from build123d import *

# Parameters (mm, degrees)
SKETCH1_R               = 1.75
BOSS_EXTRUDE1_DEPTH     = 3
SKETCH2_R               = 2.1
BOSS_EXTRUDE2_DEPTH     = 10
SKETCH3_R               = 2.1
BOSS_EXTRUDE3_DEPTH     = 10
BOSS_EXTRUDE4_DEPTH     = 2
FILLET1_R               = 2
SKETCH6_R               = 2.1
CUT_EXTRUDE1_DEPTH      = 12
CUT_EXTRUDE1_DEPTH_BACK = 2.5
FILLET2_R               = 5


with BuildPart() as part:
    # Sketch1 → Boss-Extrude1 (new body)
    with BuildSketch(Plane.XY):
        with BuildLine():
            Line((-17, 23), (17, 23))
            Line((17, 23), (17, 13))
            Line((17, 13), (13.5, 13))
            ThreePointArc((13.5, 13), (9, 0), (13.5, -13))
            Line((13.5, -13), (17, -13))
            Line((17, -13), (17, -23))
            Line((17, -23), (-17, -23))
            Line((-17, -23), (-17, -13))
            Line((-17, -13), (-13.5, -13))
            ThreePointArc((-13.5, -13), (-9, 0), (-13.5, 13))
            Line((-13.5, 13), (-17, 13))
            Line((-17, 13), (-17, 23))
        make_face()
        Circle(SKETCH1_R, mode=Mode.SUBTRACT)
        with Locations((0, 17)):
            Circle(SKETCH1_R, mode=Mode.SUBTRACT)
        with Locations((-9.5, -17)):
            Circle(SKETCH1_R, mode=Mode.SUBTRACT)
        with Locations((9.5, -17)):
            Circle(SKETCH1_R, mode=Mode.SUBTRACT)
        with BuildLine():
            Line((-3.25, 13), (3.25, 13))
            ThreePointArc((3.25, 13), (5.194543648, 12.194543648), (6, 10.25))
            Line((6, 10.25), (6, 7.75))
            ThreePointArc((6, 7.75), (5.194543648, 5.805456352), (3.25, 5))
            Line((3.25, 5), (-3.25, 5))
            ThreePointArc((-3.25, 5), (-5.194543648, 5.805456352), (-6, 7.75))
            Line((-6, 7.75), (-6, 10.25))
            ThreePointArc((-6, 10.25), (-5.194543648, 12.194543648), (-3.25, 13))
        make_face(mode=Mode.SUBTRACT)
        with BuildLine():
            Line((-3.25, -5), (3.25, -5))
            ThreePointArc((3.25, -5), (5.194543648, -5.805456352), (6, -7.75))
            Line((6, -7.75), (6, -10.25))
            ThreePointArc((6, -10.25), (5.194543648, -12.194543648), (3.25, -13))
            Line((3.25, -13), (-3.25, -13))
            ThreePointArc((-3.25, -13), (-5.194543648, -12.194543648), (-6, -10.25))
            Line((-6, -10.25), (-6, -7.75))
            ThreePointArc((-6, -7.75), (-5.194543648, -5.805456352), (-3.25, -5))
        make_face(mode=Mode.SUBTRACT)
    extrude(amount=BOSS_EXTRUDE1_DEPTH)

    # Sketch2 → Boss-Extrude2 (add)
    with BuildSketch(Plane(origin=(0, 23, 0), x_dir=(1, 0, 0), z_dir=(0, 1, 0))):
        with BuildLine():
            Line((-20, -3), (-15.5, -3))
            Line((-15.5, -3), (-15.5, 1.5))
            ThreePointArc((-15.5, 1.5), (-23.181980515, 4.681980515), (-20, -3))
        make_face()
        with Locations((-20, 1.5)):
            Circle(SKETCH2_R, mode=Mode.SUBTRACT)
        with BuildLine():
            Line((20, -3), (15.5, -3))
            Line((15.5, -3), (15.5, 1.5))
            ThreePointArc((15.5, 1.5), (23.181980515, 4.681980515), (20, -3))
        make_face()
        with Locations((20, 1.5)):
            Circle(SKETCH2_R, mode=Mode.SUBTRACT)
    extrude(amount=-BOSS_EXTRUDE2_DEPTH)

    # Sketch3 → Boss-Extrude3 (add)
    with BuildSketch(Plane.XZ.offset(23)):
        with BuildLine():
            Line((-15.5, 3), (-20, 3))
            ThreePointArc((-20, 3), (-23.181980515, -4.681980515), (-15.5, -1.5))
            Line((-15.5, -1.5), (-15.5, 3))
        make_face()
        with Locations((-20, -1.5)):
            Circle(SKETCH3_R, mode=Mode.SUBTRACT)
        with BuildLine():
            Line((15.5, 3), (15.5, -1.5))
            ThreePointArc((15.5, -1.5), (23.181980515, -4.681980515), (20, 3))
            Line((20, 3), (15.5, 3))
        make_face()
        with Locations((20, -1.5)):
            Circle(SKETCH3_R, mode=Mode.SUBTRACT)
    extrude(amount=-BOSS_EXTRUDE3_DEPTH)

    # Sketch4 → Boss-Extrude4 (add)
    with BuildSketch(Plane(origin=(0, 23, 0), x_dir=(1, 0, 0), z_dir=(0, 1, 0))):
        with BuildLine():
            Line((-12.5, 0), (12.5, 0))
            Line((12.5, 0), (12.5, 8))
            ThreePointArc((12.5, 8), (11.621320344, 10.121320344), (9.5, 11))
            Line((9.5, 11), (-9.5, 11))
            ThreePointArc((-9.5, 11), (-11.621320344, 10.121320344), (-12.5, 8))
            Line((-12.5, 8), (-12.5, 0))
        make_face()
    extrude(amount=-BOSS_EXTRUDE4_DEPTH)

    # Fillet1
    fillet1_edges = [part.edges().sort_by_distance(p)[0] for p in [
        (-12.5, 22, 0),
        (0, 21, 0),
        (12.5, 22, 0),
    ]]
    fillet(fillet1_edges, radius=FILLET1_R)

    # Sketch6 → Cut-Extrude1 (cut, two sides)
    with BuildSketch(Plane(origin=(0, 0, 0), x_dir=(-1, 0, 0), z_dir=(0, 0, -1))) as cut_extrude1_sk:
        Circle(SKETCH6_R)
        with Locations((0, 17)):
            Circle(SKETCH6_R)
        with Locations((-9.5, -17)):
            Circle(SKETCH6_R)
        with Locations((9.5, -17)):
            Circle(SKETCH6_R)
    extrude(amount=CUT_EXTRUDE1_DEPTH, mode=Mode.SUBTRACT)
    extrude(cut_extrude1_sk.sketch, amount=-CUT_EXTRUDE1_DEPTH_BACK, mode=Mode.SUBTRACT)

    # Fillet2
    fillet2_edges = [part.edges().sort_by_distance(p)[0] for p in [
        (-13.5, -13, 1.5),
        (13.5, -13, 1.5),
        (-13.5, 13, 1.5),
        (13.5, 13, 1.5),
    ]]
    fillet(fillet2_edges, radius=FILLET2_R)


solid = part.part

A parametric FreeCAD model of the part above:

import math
import FreeCAD as App
import Part
import Sketcher
Q = App.Units.Quantity


def edges_at(feature, points):
    """Names of the edges that pass closest to the given points."""
    edges = feature.Shape.Edges
    near = lambda p: min(range(len(edges)), key=lambda i: edges[i].distToShape(Part.Vertex(*p))[0])
    return sorted({f"Edge{near(p) + 1}" for p in points})

doc = App.newDocument("Part")
params = doc.addObject("Spreadsheet::Sheet", "Params")
for row, (alias, value) in enumerate([
    ("sketch1_diameter", "3.5 mm"),
    ("sketch1_width", "34 mm"),
    ("sketch1_height", "10 mm"),
    ("sketch1_radius", "2.75 mm"),
    ("sketch1_width2", "3.5 mm"),
    ("pad1_length", "3 mm"),
    ("sketch2_diameter", "4.2 mm"),
    ("sketch2_radius", "4.5 mm"),
    ("pad2_length", "10 mm"),
    ("sketch3_diameter", "4.2 mm"),
    ("sketch3_radius", "4.5 mm"),
    ("pad3_length", "10 mm"),
    ("sketch4_radius", "3 mm"),
    ("sketch4_width", "25 mm"),
    ("sketch4_height", "8 mm"),
    ("pad4_length", "2 mm"),
    ("fillet_radius", "2 mm"),
    ("sketch5_diameter", "4.2 mm"),
    ("pocket1_length", "12 mm"),
    ("pocket1_length2", "2.5 mm"),
    ("fillet2_radius", "5 mm"),
], start=1):
    params.set(f"A{row}", alias)
    params.set(f"B{row}", "=" + value)
    params.setAlias(f"B{row}", alias)

body = doc.addObject("PartDesign::Body", "Body")

sketch1 = body.newObject("Sketcher::SketchObject", "Sketch")
sketch1.AttachmentSupport = (doc.getObject("XY_Plane"), [""])
sketch1.MapMode = "FlatFace"
sketch1.addGeometry(Part.LineSegment(App.Vector(17, 23, 0), App.Vector(-17, 23, 0)), False)
sketch1.addGeometry(Part.LineSegment(App.Vector(-17, 23, 0), App.Vector(-17, 13, 0)), False)
sketch1.addGeometry(Part.LineSegment(App.Vector(-17, 13, 0), App.Vector(-13.5, 13, 0)), False)
sketch1.addGeometry(Part.ArcOfCircle(Part.Circle(App.Vector(-30.027778, 0, 0), App.Vector(0, 0, 1), 21.027778), math.radians(-38.186984), math.radians(38.186984)), False)
sketch1.addGeometry(Part.LineSegment(App.Vector(-13.5, -13, 0), App.Vector(-17, -13, 0)), False)
sketch1.addGeometry(Part.LineSegment(App.Vector(-17, -13, 0), App.Vector(-17, -23, 0)), False)
sketch1.addGeometry(Part.LineSegment(App.Vector(-17, -23, 0), App.Vector(17, -23, 0)), False)
sketch1.addGeometry(Part.LineSegment(App.Vector(17, -23, 0), App.Vector(17, -13, 0)), False)
sketch1.addGeometry(Part.LineSegment(App.Vector(17, -13, 0), App.Vector(13.5, -13, 0)), False)
sketch1.addGeometry(Part.ArcOfCircle(Part.Circle(App.Vector(30.027778, 0, 0), App.Vector(0, 0, 1), 21.027778), math.radians(141.813016), math.radians(218.186984)), False)
sketch1.addGeometry(Part.LineSegment(App.Vector(13.5, 13, 0), App.Vector(17, 13, 0)), False)
sketch1.addGeometry(Part.LineSegment(App.Vector(17, 13, 0), App.Vector(17, 23, 0)), False)
sketch1.addGeometry(Part.Circle(App.Vector(9.5, -17, 0), App.Vector(0, 0, 1), 1.75), False)
sketch1.addGeometry(Part.Circle(App.Vector(-9.5, -17, 0), App.Vector(0, 0, 1), 1.75), False)
sketch1.addGeometry(Part.LineSegment(App.Vector(-3.25, -5, 0), App.Vector(3.25, -5, 0)), False)
sketch1.addGeometry(Part.ArcOfCircle(Part.Circle(App.Vector(3.25, -7.75, 0), App.Vector(0, 0, 1), 2.75), math.radians(0), math.radians(90)), False)
sketch1.addGeometry(Part.LineSegment(App.Vector(6, -7.75, 0), App.Vector(6, -10.25, 0)), False)
sketch1.addGeometry(Part.ArcOfCircle(Part.Circle(App.Vector(3.25, -10.25, 0), App.Vector(0, 0, 1), 2.75), math.radians(-90), math.radians(0)), False)
sketch1.addGeometry(Part.LineSegment(App.Vector(3.25, -13, 0), App.Vector(-3.25, -13, 0)), False)
sketch1.addGeometry(Part.ArcOfCircle(Part.Circle(App.Vector(-3.25, -10.25, 0), App.Vector(0, 0, 1), 2.75), math.radians(-180), math.radians(-90)), False)
sketch1.addGeometry(Part.LineSegment(App.Vector(-6, -10.25, 0), App.Vector(-6, -7.75, 0)), False)
sketch1.addGeometry(Part.ArcOfCircle(Part.Circle(App.Vector(-3.25, -7.75, 0), App.Vector(0, 0, 1), 2.75), math.radians(90), math.radians(180)), False)
sketch1.addGeometry(Part.Circle(App.Vector(0, 0, 0), App.Vector(0, 0, 1), 1.75), False)
sketch1.addGeometry(Part.LineSegment(App.Vector(-3.25, 13, 0), App.Vector(3.25, 13, 0)), False)
sketch1.addGeometry(Part.ArcOfCircle(Part.Circle(App.Vector(3.25, 10.25, 0), App.Vector(0, 0, 1), 2.75), math.radians(0), math.radians(90)), False)
sketch1.addGeometry(Part.LineSegment(App.Vector(6, 10.25, 0), App.Vector(6, 7.75, 0)), False)
sketch1.addGeometry(Part.ArcOfCircle(Part.Circle(App.Vector(3.25, 7.75, 0), App.Vector(0, 0, 1), 2.75), math.radians(-90), math.radians(0)), False)
sketch1.addGeometry(Part.LineSegment(App.Vector(3.25, 5, 0), App.Vector(-3.25, 5, 0)), False)
sketch1.addGeometry(Part.ArcOfCircle(Part.Circle(App.Vector(-3.25, 7.75, 0), App.Vector(0, 0, 1), 2.75), math.radians(-180), math.radians(-90)), False)
sketch1.addGeometry(Part.LineSegment(App.Vector(-6, 7.75, 0), App.Vector(-6, 10.25, 0)), False)
sketch1.addGeometry(Part.ArcOfCircle(Part.Circle(App.Vector(-3.25, 10.25, 0), App.Vector(0, 0, 1), 2.75), math.radians(90), math.radians(180)), False)
sketch1.addGeometry(Part.Circle(App.Vector(0, 17, 0), App.Vector(0, 0, 1), 1.75), False)
sketch1.addConstraint(Sketcher.Constraint("Coincident", 0, 2, 1, 1))
sketch1.addConstraint(Sketcher.Constraint("Coincident", 1, 2, 2, 1))
sketch1.addConstraint(Sketcher.Constraint("Coincident", 2, 2, 3, 2))
sketch1.addConstraint(Sketcher.Constraint("Coincident", 3, 1, 4, 1))
sketch1.addConstraint(Sketcher.Constraint("Coincident", 4, 2, 5, 1))
sketch1.addConstraint(Sketcher.Constraint("Coincident", 5, 2, 6, 1))
sketch1.addConstraint(Sketcher.Constraint("Coincident", 6, 2, 7, 1))
sketch1.addConstraint(Sketcher.Constraint("Coincident", 7, 2, 8, 1))
sketch1.addConstraint(Sketcher.Constraint("Coincident", 8, 2, 9, 2))
sketch1.addConstraint(Sketcher.Constraint("Coincident", 9, 1, 10, 1))
sketch1.addConstraint(Sketcher.Constraint("Coincident", 10, 2, 11, 1))
sketch1.addConstraint(Sketcher.Constraint("Coincident", 11, 2, 0, 1))
sketch1.addConstraint(Sketcher.Constraint("Tangent", 14, 2, 15, 2))
sketch1.addConstraint(Sketcher.Constraint("Tangent", 15, 1, 16, 1))
sketch1.addConstraint(Sketcher.Constraint("Tangent", 16, 2, 17, 2))
sketch1.addConstraint(Sketcher.Constraint("Tangent", 17, 1, 18, 1))
sketch1.addConstraint(Sketcher.Constraint("Tangent", 18, 2, 19, 2))
sketch1.addConstraint(Sketcher.Constraint("Tangent", 19, 1, 20, 1))
sketch1.addConstraint(Sketcher.Constraint("Tangent", 20, 2, 21, 2))
sketch1.addConstraint(Sketcher.Constraint("Tangent", 21, 1, 14, 1))
sketch1.addConstraint(Sketcher.Constraint("Tangent", 23, 2, 24, 2))
sketch1.addConstraint(Sketcher.Constraint("Tangent", 24, 1, 25, 1))
sketch1.addConstraint(Sketcher.Constraint("Tangent", 25, 2, 26, 2))
sketch1.addConstraint(Sketcher.Constraint("Tangent", 26, 1, 27, 1))
sketch1.addConstraint(Sketcher.Constraint("Tangent", 27, 2, 28, 2))
sketch1.addConstraint(Sketcher.Constraint("Tangent", 28, 1, 29, 1))
sketch1.addConstraint(Sketcher.Constraint("Tangent", 29, 2, 30, 2))
sketch1.addConstraint(Sketcher.Constraint("Tangent", 30, 1, 23, 1))
sketch1.addConstraint(Sketcher.Constraint("Horizontal", 0))
sketch1.addConstraint(Sketcher.Constraint("Vertical", 1))
sketch1.addConstraint(Sketcher.Constraint("Horizontal", 2))
sketch1.addConstraint(Sketcher.Constraint("Horizontal", 4))
sketch1.addConstraint(Sketcher.Constraint("Vertical", 5))
sketch1.addConstraint(Sketcher.Constraint("Horizontal", 6))
sketch1.addConstraint(Sketcher.Constraint("Vertical", 7))
sketch1.addConstraint(Sketcher.Constraint("Horizontal", 8))
sketch1.addConstraint(Sketcher.Constraint("Horizontal", 10))
sketch1.addConstraint(Sketcher.Constraint("Vertical", 11))
sketch1.addConstraint(Sketcher.Constraint("Horizontal", 14))
sketch1.addConstraint(Sketcher.Constraint("Vertical", 16))
sketch1.addConstraint(Sketcher.Constraint("Horizontal", 18))
sketch1.addConstraint(Sketcher.Constraint("Vertical", 20))
sketch1.addConstraint(Sketcher.Constraint("Horizontal", 23))
sketch1.addConstraint(Sketcher.Constraint("Vertical", 25))
sketch1.addConstraint(Sketcher.Constraint("Horizontal", 27))
sketch1.addConstraint(Sketcher.Constraint("Vertical", 29))
sketch1.addConstraint(Sketcher.Constraint("Coincident", 22, 3, -1, 1))
sketch1.addConstraint(Sketcher.Constraint("Equal", 3, 9))
sketch1.addConstraint(Sketcher.Constraint("Equal", 12, 13))
sketch1.addConstraint(Sketcher.Constraint("Equal", 15, 17))
sketch1.addConstraint(Sketcher.Constraint("Equal", 17, 19))
sketch1.addConstraint(Sketcher.Constraint("Equal", 19, 21))
sketch1.addConstraint(Sketcher.Constraint("Equal", 13, 22))
sketch1.addConstraint(Sketcher.Constraint("Equal", 21, 24))
sketch1.addConstraint(Sketcher.Constraint("Equal", 24, 26))
sketch1.addConstraint(Sketcher.Constraint("Equal", 26, 28))
sketch1.addConstraint(Sketcher.Constraint("Equal", 28, 30))
sketch1.addConstraint(Sketcher.Constraint("Equal", 22, 31))
sketch1.addConstraint(Sketcher.Constraint("Symmetric", 3, 3, 9, 3, -1, 1))
sketch1.addConstraint(Sketcher.Constraint("Symmetric", 19, 3, 24, 3, -1, 1))
sketch1.addConstraint(Sketcher.Constraint("Symmetric", 15, 3, 28, 3, -1, 1))
sketch1.addConstraint(Sketcher.Constraint("Symmetric", 0, 2, 6, 2, -1, 1))
sketch1.addConstraint(Sketcher.Constraint("Symmetric", 4, 2, 10, 2, -1, 1))
sketch1.addConstraint(Sketcher.Constraint("Symmetric", 12, 3, 13, 3, -2))
sketch1.addConstraint(Sketcher.Constraint("Symmetric", 4, 2, 7, 2, -2))
sketch1.addConstraint(Sketcher.Constraint("Symmetric", 2, 2, 9, 1, -2))
sketch1.addConstraint(Sketcher.Constraint("PointOnObject", 31, 3, -2))
sketch1.addConstraint(Sketcher.Constraint("Horizontal", 8, 2, 17, 1))
sketch1.addConstraint(Sketcher.Constraint("Vertical", 17, 3, 24, 3))
sketch1.addConstraint(Sketcher.Constraint("Diameter", 12, Q("3.5 mm")))
sketch1.addConstraint(Sketcher.Constraint("DistanceX", 0, 2, 0, 1, Q("34 mm")))
sketch1.addConstraint(Sketcher.Constraint("DistanceY", 1, 2, 1, 1, Q("10 mm")))
sketch1.addConstraint(Sketcher.Constraint("Radius", 15, Q("2.75 mm")))
sketch1.addConstraint(Sketcher.Constraint("DistanceX", 2, 1, 2, 2, Q("3.5 mm")))
sketch1.addConstraint(Sketcher.Constraint("DistanceX", 14, 1, 14, 2, Q("6.5 mm")))
sketch1.addConstraint(Sketcher.Constraint("DistanceY", 16, 2, 16, 1, Q("2.5 mm")))
sketch1.addConstraint(Sketcher.Constraint("DistanceY", 12, 3, -1, 1, Q("17 mm")))
sketch1.addConstraint(Sketcher.Constraint("DistanceY", -1, 1, 31, 3, Q("17 mm")))
sketch1.addConstraint(Sketcher.Constraint("DistanceY", -1, 1, 0, 2, Q("23 mm")))
sketch1.addConstraint(Sketcher.Constraint("DistanceX", 13, 3, 12, 3, Q("19 mm")))
sketch1.addConstraint(Sketcher.Constraint("Radius", 3, Q("21.027778 mm")))
sketch1.setExpression("Constraints[69]", "Params.sketch1_diameter")
sketch1.setExpression("Constraints[70]", "Params.sketch1_width")
sketch1.setExpression("Constraints[71]", "Params.sketch1_height")
sketch1.setExpression("Constraints[72]", "Params.sketch1_radius")
sketch1.setExpression("Constraints[73]", "Params.sketch1_width2")
pad1 = body.newObject("PartDesign::Pad", "Pad")
pad1.Profile = sketch1
pad1.setExpression("Length", "Params.pad1_length")

sketch2 = body.newObject("Sketcher::SketchObject", "Sketch001")
sketch2.AttachmentSupport = (doc.getObject("XZ_Plane"), [""])
sketch2.MapMode = "FlatFace"
sketch2.AttachmentOffset = App.Placement(App.Vector(0, 0, -23), App.Rotation())
sketch2.addGeometry(Part.LineSegment(App.Vector(-20, 3, 0), App.Vector(-15.5, 3, 0)), False)
sketch2.addGeometry(Part.LineSegment(App.Vector(-15.5, 3, 0), App.Vector(-15.5, -1.5, 0)), False)
sketch2.addGeometry(Part.ArcOfCircle(Part.Circle(App.Vector(-20, -1.5, 0), App.Vector(0, 0, 1), 4.5), math.radians(90), math.radians(360)), False)
sketch2.addGeometry(Part.Circle(App.Vector(-20, -1.5, 0), App.Vector(0, 0, 1), 2.1), False)
sketch2.addGeometry(Part.LineSegment(App.Vector(15.5, 3, 0), App.Vector(20, 3, 0)), False)
sketch2.addGeometry(Part.ArcOfCircle(Part.Circle(App.Vector(20, -1.5, 0), App.Vector(0, 0, 1), 4.5), math.radians(180), math.radians(450)), False)
sketch2.addGeometry(Part.LineSegment(App.Vector(15.5, -1.5, 0), App.Vector(15.5, 3, 0)), False)
sketch2.addGeometry(Part.Circle(App.Vector(20, -1.5, 0), App.Vector(0, 0, 1), 2.1), False)
sketch2.addConstraint(Sketcher.Constraint("Coincident", 0, 2, 1, 1))
sketch2.addConstraint(Sketcher.Constraint("Tangent", 1, 2, 2, 2))
sketch2.addConstraint(Sketcher.Constraint("Tangent", 2, 1, 0, 1))
sketch2.addConstraint(Sketcher.Constraint("Tangent", 4, 2, 5, 2))
sketch2.addConstraint(Sketcher.Constraint("Tangent", 5, 1, 6, 1))
sketch2.addConstraint(Sketcher.Constraint("Coincident", 6, 2, 4, 1))
sketch2.addConstraint(Sketcher.Constraint("Horizontal", 0))
sketch2.addConstraint(Sketcher.Constraint("Vertical", 1))
sketch2.addConstraint(Sketcher.Constraint("Horizontal", 4))
sketch2.addConstraint(Sketcher.Constraint("Vertical", 6))
sketch2.addConstraint(Sketcher.Constraint("Coincident", 3, 3, 2, 3))
sketch2.addConstraint(Sketcher.Constraint("Coincident", 7, 3, 5, 3))
sketch2.addConstraint(Sketcher.Constraint("Equal", 2, 5))
sketch2.addConstraint(Sketcher.Constraint("Equal", 3, 7))
sketch2.addConstraint(Sketcher.Constraint("Symmetric", 2, 3, 5, 3, -2))
sketch2.addConstraint(Sketcher.Constraint("Diameter", 3, Q("4.2 mm")))
sketch2.addConstraint(Sketcher.Constraint("Radius", 2, Q("4.5 mm")))
sketch2.addConstraint(Sketcher.Constraint("DistanceX", 2, 3, -1, 1, Q("20 mm")))
sketch2.addConstraint(Sketcher.Constraint("DistanceY", -1, 1, 0, 2, Q("3 mm")))
sketch2.setExpression("Constraints[15]", "Params.sketch2_diameter")
sketch2.setExpression("Constraints[16]", "Params.sketch2_radius")
pad2 = body.newObject("PartDesign::Pad", "Pad001")
pad2.Profile = sketch2
pad2.setExpression("Length", "Params.pad2_length")

sketch3 = body.newObject("Sketcher::SketchObject", "Sketch002")
sketch3.AttachmentSupport = (doc.getObject("XZ_Plane"), [""])
sketch3.MapMode = "FlatFace"
sketch3.AttachmentOffset = App.Placement(App.Vector(0, 0, 23), App.Rotation())
sketch3.addGeometry(Part.LineSegment(App.Vector(-15.5, 3, 0), App.Vector(-20, 3, 0)), False)
sketch3.addGeometry(Part.ArcOfCircle(Part.Circle(App.Vector(-20, -1.5, 0), App.Vector(0, 0, 1), 4.5), math.radians(90), math.radians(360)), False)
sketch3.addGeometry(Part.LineSegment(App.Vector(-15.5, -1.5, 0), App.Vector(-15.5, 3, 0)), False)
sketch3.addGeometry(Part.Circle(App.Vector(-20, -1.5, 0), App.Vector(0, 0, 1), 2.1), False)
sketch3.addGeometry(Part.LineSegment(App.Vector(15.5, 3, 0), App.Vector(15.5, -1.5, 0)), False)
sketch3.addGeometry(Part.ArcOfCircle(Part.Circle(App.Vector(20, -1.5, 0), App.Vector(0, 0, 1), 4.5), math.radians(180), math.radians(450)), False)
sketch3.addGeometry(Part.LineSegment(App.Vector(20, 3, 0), App.Vector(15.5, 3, 0)), False)
sketch3.addGeometry(Part.Circle(App.Vector(20, -1.5, 0), App.Vector(0, 0, 1), 2.1), False)
sketch3.addConstraint(Sketcher.Constraint("Tangent", 0, 2, 1, 1))
sketch3.addConstraint(Sketcher.Constraint("Tangent", 1, 2, 2, 1))
sketch3.addConstraint(Sketcher.Constraint("Coincident", 2, 2, 0, 1))
sketch3.addConstraint(Sketcher.Constraint("Tangent", 4, 2, 5, 1))
sketch3.addConstraint(Sketcher.Constraint("Tangent", 5, 2, 6, 1))
sketch3.addConstraint(Sketcher.Constraint("Coincident", 6, 2, 4, 1))
sketch3.addConstraint(Sketcher.Constraint("Horizontal", 0))
sketch3.addConstraint(Sketcher.Constraint("Vertical", 2))
sketch3.addConstraint(Sketcher.Constraint("Vertical", 4))
sketch3.addConstraint(Sketcher.Constraint("Horizontal", 6))
sketch3.addConstraint(Sketcher.Constraint("Coincident", 3, 3, 1, 3))
sketch3.addConstraint(Sketcher.Constraint("Coincident", 7, 3, 5, 3))
sketch3.addConstraint(Sketcher.Constraint("Equal", 1, 5))
sketch3.addConstraint(Sketcher.Constraint("Equal", 3, 7))
sketch3.addConstraint(Sketcher.Constraint("Symmetric", 1, 3, 5, 3, -2))
sketch3.addConstraint(Sketcher.Constraint("Diameter", 3, Q("4.2 mm")))
sketch3.addConstraint(Sketcher.Constraint("Radius", 1, Q("4.5 mm")))
sketch3.addConstraint(Sketcher.Constraint("DistanceX", 1, 3, -1, 1, Q("20 mm")))
sketch3.addConstraint(Sketcher.Constraint("DistanceY", -1, 1, 0, 2, Q("3 mm")))
sketch3.setExpression("Constraints[15]", "Params.sketch3_diameter")
sketch3.setExpression("Constraints[16]", "Params.sketch3_radius")
pad3 = body.newObject("PartDesign::Pad", "Pad002")
pad3.Profile = sketch3
pad3.setExpression("Length", "Params.pad3_length")
pad3.Reversed = True

sketch4 = body.newObject("Sketcher::SketchObject", "Sketch003")
sketch4.AttachmentSupport = (doc.getObject("XZ_Plane"), [""])
sketch4.MapMode = "FlatFace"
sketch4.AttachmentOffset = App.Placement(App.Vector(0, 0, -23), App.Rotation())
sketch4.addGeometry(Part.LineSegment(App.Vector(-12.5, 0, 0), App.Vector(12.5, 0, 0)), False)
sketch4.addGeometry(Part.LineSegment(App.Vector(12.5, 0, 0), App.Vector(12.5, -8, 0)), False)
sketch4.addGeometry(Part.ArcOfCircle(Part.Circle(App.Vector(9.5, -8, 0), App.Vector(0, 0, 1), 3), math.radians(-90), math.radians(0)), False)
sketch4.addGeometry(Part.LineSegment(App.Vector(9.5, -11, 0), App.Vector(-9.5, -11, 0)), False)
sketch4.addGeometry(Part.ArcOfCircle(Part.Circle(App.Vector(-9.5, -8, 0), App.Vector(0, 0, 1), 3), math.radians(180), math.radians(270)), False)
sketch4.addGeometry(Part.LineSegment(App.Vector(-12.5, -8, 0), App.Vector(-12.5, 0, 0)), False)
sketch4.addConstraint(Sketcher.Constraint("Coincident", 0, 2, 1, 1))
sketch4.addConstraint(Sketcher.Constraint("Tangent", 1, 2, 2, 2))
sketch4.addConstraint(Sketcher.Constraint("Tangent", 2, 1, 3, 1))
sketch4.addConstraint(Sketcher.Constraint("Tangent", 3, 2, 4, 2))
sketch4.addConstraint(Sketcher.Constraint("Tangent", 4, 1, 5, 1))
sketch4.addConstraint(Sketcher.Constraint("Coincident", 5, 2, 0, 1))
sketch4.addConstraint(Sketcher.Constraint("Horizontal", 0))
sketch4.addConstraint(Sketcher.Constraint("Vertical", 1))
sketch4.addConstraint(Sketcher.Constraint("Horizontal", 3))
sketch4.addConstraint(Sketcher.Constraint("Vertical", 5))
sketch4.addConstraint(Sketcher.Constraint("Equal", 2, 4))
sketch4.addConstraint(Sketcher.Constraint("Symmetric", 0, 2, 5, 2, -1, 1))
sketch4.addConstraint(Sketcher.Constraint("Radius", 2, Q("3 mm")))
sketch4.addConstraint(Sketcher.Constraint("DistanceX", 0, 1, 0, 2, Q("25 mm")))
sketch4.addConstraint(Sketcher.Constraint("DistanceY", 1, 2, 1, 1, Q("8 mm")))
sketch4.setExpression("Constraints[12]", "Params.sketch4_radius")
sketch4.setExpression("Constraints[13]", "Params.sketch4_width")
sketch4.setExpression("Constraints[14]", "Params.sketch4_height")
pad4 = body.newObject("PartDesign::Pad", "Pad003")
pad4.Profile = sketch4
pad4.setExpression("Length", "Params.pad4_length")
doc.recompute()

fillet = body.newObject("PartDesign::Fillet", "Fillet")
fillet.Base = (pad4, edges_at(pad4, [(-12.5, 22, 0), (0, 21, 0), (12.5, 22, 0)]))
fillet.setExpression("Radius", "Params.fillet_radius")

sketch5 = body.newObject("Sketcher::SketchObject", "Sketch004")
sketch5.AttachmentSupport = (doc.getObject("XY_Plane"), [""])
sketch5.MapMode = "FlatFace"
sketch5.addGeometry(Part.Circle(App.Vector(0, 0, 0), App.Vector(0, 0, 1), 2.1), False)
sketch5.addGeometry(Part.Circle(App.Vector(0, 17, 0), App.Vector(0, 0, 1), 2.1), False)
sketch5.addGeometry(Part.Circle(App.Vector(9.5, -17, 0), App.Vector(0, 0, 1), 2.1), False)
sketch5.addGeometry(Part.Circle(App.Vector(-9.5, -17, 0), App.Vector(0, 0, 1), 2.1), False)
sketch5.addConstraint(Sketcher.Constraint("Coincident", 0, 3, -1, 1))
sketch5.addConstraint(Sketcher.Constraint("Equal", 0, 1))
sketch5.addConstraint(Sketcher.Constraint("Equal", 1, 2))
sketch5.addConstraint(Sketcher.Constraint("Equal", 2, 3))
sketch5.addConstraint(Sketcher.Constraint("Symmetric", 2, 3, 3, 3, -2))
sketch5.addConstraint(Sketcher.Constraint("PointOnObject", 1, 3, -2))
sketch5.addConstraint(Sketcher.Constraint("Diameter", 0, Q("4.2 mm")))
sketch5.addConstraint(Sketcher.Constraint("DistanceY", -1, 1, 1, 3, Q("17 mm")))
sketch5.addConstraint(Sketcher.Constraint("DistanceY", 2, 3, -1, 1, Q("17 mm")))
sketch5.addConstraint(Sketcher.Constraint("DistanceX", 3, 3, 2, 3, Q("19 mm")))
sketch5.setExpression("Constraints[6]", "Params.sketch5_diameter")
pocket1 = body.newObject("PartDesign::Pocket", "Pocket")
pocket1.Profile = sketch5
pocket1.Type = "TwoLengths"
pocket1.setExpression("Length", "Params.pocket1_length")
pocket1.setExpression("Length2", "Params.pocket1_length2")
doc.recompute()

fillet2 = body.newObject("PartDesign::Fillet", "Fillet001")
fillet2.Base = (pocket1, edges_at(pocket1, [
    (-13.5, -13, 1.5),
    (13.5, -13, 1.5),
    (-13.5, 13, 1.5),
    (13.5, 13, 1.5),
]))
fillet2.setExpression("Radius", "Params.fillet2_radius")

doc.recompute()
